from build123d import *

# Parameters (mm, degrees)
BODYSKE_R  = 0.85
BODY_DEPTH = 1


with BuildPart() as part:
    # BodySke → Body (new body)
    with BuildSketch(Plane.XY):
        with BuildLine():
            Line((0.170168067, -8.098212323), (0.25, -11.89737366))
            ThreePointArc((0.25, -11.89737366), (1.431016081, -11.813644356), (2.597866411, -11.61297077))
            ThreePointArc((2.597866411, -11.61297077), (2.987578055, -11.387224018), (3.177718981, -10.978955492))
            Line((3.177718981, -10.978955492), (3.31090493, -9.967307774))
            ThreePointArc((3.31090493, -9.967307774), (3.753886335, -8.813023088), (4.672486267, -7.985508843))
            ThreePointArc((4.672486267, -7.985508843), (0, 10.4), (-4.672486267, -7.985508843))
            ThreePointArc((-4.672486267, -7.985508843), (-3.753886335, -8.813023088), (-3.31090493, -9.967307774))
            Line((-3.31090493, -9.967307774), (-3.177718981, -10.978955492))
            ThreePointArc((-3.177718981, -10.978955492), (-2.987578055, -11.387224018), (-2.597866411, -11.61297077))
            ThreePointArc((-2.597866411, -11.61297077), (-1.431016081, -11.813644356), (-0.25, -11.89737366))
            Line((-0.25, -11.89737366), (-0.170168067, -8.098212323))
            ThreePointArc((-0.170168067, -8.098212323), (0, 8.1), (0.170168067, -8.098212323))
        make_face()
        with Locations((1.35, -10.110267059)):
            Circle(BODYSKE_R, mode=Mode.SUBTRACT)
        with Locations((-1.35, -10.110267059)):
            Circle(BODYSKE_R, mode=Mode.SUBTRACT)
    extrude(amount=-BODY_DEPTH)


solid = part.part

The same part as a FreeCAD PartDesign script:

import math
import FreeCAD as App
import Part
import Sketcher
Q = App.Units.Quantity

doc = App.newDocument("Part")
body = doc.addObject("PartDesign::Body", "Body")

# Sketch on XY plane
sketch1 = doc.addObject("Sketcher::SketchObject", "Sketch")
body.addObject(sketch1)
sketch1.AttachmentSupport = (doc.XY_Plane, [""])
sketch1.MapMode = "FlatFace"
sketch1.addGeometry([
    Part.LineSegment(App.Vector(0.17, -8.1, 0), App.Vector(0.25, -11.9, 0)),  # 0
    Part.ArcOfCircle(Part.Circle(App.Vector(0, 0, 0), App.Vector(0, 0, 1), 11.9), math.radians(-88.8), math.radians(-77.39)),  # 1
    Part.ArcOfCircle(Part.Circle(App.Vector(2.43, -10.88, 0), App.Vector(0, 0, 1), 0.75), math.radians(-77), math.radians(-8)),  # 2
    Part.LineSegment(App.Vector(3.18, -10.98, 0), App.Vector(3.31, -9.97, 0)),  # 3
    Part.ArcOfCircle(Part.Circle(App.Vector(5.94, -10.31, 0), App.Vector(0, 0, 1), 2.65), math.radians(119), math.radians(173)),  # 4
    Part.ArcOfCircle(Part.Circle(App.Vector(0, 0.61, 0), App.Vector(0, 0, 1), 9.79), math.radians(-61), math.radians(241)),  # 5
    Part.ArcOfCircle(Part.Circle(App.Vector(-5.94, -10.31, 0), App.Vector(0, 0, 1), 2.65), math.radians(7), math.radians(61)),  # 6
    Part.LineSegment(App.Vector(-3.31, -9.97, 0), App.Vector(-3.18, -10.98, 0)),  # 7
    Part.ArcOfCircle(Part.Circle(App.Vector(-2.43, -10.88, 0), App.Vector(0, 0, 1), 0.75), math.radians(-172), math.radians(-103)),  # 8
    Part.ArcOfCircle(Part.Circle(App.Vector(0, 0, 0), App.Vector(0, 0, 1), 11.9), math.radians(-102.61), math.radians(-91.2)),  # 9
    Part.LineSegment(App.Vector(-0.25, -11.9, 0), App.Vector(-0.17, -8.1, 0)),  # 10
    Part.ArcOfCircle(Part.Circle(App.Vector(0, 0, 0), App.Vector(0, 0, 1), 8.1), math.radians(-89), math.radians(269)),  # 11
    Part.Circle(App.Vector(-1.35, -10.11, 0), App.Vector(0, 0, 1), 0.85),  # 12
    Part.Circle(App.Vector(1.35, -10.11, 0), App.Vector(0, 0, 1), 0.85),  # 13
], False)
sketch1.addConstraint([
    Sketcher.Constraint("Coincident", 0, 2, 1, 1),
    Sketcher.Constraint("Tangent", 1, 2, 2, 1),
    Sketcher.Constraint("Tangent", 2, 2, 3, 1),
    Sketcher.Constraint("Tangent", 3, 2, 4, 2),
    Sketcher.Constraint("Tangent", 4, 1, 5, 1),
    Sketcher.Constraint("Tangent", 5, 2, 6, 2),
    Sketcher.Constraint("Tangent", 6, 1, 7, 1),
    Sketcher.Constraint("Tangent", 7, 2, 8, 1),
    Sketcher.Constraint("Tangent", 8, 2, 9, 1),
    Sketcher.Constraint("Coincident", 9, 2, 10, 1),
    Sketcher.Constraint("Coincident", 10, 2, 11, 2),
    Sketcher.Constraint("Coincident", 11, 1, 0, 1),
    Sketcher.Constraint("Coincident", 1, 3, -1, 1),
    Sketcher.Constraint("Coincident", 9, 3, -1, 1),
    Sketcher.Constraint("Coincident", 11, 3, -1, 1),
    Sketcher.Constraint("Equal", 4, 6),
    Sketcher.Constraint("Equal", 2, 8),
    Sketcher.Constraint("Equal", 1, 9),
    Sketcher.Constraint("Equal", 12, 13),
    Sketcher.Constraint("Symmetric", 4, 3, 6, 3, -2),
    Sketcher.Constraint("Symmetric", 12, 3, 13, 3, -2),
    Sketcher.Constraint("Horizontal", 2, 3, 8, 3),
    Sketcher.Constraint("Horizontal", 0, 2, 9, 2),
    Sketcher.Constraint("Horizontal", 10, 2, 11, 1),
    Sketcher.Constraint("Diameter", 12, 1.7),
    Sketcher.Constraint("Radius", 1, 11.9),
    Sketcher.Constraint("Radius", 11, 8.1),
    Sketcher.Constraint("Radius", 2, 0.75),
    Sketcher.Constraint("Angle", 3, Q("82.5 deg")),
    Sketcher.Constraint("DistanceX", 12, 3, 13, 3, 2.7),
    Sketcher.Constraint("DistanceX", 0, 2, 13, 3, 1.1),
    Sketcher.Constraint("Radius", 4, 2.64898),
    Sketcher.Constraint("Radius", 5, 9.786486),
    Sketcher.Constraint("DistanceY", 6, 3, 12, 3, 0.202802),
    Sketcher.Constraint("DistanceY", 1, 2, 4, 3, 1.299902),
    Sketcher.Constraint("DistanceY", 3, 2, 4, 1, 1.981799),
    Sketcher.Constraint("DistanceX", 10, 2, -1, 1, 0.170168),
])
pad1 = doc.addObject("PartDesign::Pad", "Pad")
body.addObject(pad1)
pad1.Profile = sketch1
pad1.Length = 1
pad1.Reversed = True

doc.recompute()
